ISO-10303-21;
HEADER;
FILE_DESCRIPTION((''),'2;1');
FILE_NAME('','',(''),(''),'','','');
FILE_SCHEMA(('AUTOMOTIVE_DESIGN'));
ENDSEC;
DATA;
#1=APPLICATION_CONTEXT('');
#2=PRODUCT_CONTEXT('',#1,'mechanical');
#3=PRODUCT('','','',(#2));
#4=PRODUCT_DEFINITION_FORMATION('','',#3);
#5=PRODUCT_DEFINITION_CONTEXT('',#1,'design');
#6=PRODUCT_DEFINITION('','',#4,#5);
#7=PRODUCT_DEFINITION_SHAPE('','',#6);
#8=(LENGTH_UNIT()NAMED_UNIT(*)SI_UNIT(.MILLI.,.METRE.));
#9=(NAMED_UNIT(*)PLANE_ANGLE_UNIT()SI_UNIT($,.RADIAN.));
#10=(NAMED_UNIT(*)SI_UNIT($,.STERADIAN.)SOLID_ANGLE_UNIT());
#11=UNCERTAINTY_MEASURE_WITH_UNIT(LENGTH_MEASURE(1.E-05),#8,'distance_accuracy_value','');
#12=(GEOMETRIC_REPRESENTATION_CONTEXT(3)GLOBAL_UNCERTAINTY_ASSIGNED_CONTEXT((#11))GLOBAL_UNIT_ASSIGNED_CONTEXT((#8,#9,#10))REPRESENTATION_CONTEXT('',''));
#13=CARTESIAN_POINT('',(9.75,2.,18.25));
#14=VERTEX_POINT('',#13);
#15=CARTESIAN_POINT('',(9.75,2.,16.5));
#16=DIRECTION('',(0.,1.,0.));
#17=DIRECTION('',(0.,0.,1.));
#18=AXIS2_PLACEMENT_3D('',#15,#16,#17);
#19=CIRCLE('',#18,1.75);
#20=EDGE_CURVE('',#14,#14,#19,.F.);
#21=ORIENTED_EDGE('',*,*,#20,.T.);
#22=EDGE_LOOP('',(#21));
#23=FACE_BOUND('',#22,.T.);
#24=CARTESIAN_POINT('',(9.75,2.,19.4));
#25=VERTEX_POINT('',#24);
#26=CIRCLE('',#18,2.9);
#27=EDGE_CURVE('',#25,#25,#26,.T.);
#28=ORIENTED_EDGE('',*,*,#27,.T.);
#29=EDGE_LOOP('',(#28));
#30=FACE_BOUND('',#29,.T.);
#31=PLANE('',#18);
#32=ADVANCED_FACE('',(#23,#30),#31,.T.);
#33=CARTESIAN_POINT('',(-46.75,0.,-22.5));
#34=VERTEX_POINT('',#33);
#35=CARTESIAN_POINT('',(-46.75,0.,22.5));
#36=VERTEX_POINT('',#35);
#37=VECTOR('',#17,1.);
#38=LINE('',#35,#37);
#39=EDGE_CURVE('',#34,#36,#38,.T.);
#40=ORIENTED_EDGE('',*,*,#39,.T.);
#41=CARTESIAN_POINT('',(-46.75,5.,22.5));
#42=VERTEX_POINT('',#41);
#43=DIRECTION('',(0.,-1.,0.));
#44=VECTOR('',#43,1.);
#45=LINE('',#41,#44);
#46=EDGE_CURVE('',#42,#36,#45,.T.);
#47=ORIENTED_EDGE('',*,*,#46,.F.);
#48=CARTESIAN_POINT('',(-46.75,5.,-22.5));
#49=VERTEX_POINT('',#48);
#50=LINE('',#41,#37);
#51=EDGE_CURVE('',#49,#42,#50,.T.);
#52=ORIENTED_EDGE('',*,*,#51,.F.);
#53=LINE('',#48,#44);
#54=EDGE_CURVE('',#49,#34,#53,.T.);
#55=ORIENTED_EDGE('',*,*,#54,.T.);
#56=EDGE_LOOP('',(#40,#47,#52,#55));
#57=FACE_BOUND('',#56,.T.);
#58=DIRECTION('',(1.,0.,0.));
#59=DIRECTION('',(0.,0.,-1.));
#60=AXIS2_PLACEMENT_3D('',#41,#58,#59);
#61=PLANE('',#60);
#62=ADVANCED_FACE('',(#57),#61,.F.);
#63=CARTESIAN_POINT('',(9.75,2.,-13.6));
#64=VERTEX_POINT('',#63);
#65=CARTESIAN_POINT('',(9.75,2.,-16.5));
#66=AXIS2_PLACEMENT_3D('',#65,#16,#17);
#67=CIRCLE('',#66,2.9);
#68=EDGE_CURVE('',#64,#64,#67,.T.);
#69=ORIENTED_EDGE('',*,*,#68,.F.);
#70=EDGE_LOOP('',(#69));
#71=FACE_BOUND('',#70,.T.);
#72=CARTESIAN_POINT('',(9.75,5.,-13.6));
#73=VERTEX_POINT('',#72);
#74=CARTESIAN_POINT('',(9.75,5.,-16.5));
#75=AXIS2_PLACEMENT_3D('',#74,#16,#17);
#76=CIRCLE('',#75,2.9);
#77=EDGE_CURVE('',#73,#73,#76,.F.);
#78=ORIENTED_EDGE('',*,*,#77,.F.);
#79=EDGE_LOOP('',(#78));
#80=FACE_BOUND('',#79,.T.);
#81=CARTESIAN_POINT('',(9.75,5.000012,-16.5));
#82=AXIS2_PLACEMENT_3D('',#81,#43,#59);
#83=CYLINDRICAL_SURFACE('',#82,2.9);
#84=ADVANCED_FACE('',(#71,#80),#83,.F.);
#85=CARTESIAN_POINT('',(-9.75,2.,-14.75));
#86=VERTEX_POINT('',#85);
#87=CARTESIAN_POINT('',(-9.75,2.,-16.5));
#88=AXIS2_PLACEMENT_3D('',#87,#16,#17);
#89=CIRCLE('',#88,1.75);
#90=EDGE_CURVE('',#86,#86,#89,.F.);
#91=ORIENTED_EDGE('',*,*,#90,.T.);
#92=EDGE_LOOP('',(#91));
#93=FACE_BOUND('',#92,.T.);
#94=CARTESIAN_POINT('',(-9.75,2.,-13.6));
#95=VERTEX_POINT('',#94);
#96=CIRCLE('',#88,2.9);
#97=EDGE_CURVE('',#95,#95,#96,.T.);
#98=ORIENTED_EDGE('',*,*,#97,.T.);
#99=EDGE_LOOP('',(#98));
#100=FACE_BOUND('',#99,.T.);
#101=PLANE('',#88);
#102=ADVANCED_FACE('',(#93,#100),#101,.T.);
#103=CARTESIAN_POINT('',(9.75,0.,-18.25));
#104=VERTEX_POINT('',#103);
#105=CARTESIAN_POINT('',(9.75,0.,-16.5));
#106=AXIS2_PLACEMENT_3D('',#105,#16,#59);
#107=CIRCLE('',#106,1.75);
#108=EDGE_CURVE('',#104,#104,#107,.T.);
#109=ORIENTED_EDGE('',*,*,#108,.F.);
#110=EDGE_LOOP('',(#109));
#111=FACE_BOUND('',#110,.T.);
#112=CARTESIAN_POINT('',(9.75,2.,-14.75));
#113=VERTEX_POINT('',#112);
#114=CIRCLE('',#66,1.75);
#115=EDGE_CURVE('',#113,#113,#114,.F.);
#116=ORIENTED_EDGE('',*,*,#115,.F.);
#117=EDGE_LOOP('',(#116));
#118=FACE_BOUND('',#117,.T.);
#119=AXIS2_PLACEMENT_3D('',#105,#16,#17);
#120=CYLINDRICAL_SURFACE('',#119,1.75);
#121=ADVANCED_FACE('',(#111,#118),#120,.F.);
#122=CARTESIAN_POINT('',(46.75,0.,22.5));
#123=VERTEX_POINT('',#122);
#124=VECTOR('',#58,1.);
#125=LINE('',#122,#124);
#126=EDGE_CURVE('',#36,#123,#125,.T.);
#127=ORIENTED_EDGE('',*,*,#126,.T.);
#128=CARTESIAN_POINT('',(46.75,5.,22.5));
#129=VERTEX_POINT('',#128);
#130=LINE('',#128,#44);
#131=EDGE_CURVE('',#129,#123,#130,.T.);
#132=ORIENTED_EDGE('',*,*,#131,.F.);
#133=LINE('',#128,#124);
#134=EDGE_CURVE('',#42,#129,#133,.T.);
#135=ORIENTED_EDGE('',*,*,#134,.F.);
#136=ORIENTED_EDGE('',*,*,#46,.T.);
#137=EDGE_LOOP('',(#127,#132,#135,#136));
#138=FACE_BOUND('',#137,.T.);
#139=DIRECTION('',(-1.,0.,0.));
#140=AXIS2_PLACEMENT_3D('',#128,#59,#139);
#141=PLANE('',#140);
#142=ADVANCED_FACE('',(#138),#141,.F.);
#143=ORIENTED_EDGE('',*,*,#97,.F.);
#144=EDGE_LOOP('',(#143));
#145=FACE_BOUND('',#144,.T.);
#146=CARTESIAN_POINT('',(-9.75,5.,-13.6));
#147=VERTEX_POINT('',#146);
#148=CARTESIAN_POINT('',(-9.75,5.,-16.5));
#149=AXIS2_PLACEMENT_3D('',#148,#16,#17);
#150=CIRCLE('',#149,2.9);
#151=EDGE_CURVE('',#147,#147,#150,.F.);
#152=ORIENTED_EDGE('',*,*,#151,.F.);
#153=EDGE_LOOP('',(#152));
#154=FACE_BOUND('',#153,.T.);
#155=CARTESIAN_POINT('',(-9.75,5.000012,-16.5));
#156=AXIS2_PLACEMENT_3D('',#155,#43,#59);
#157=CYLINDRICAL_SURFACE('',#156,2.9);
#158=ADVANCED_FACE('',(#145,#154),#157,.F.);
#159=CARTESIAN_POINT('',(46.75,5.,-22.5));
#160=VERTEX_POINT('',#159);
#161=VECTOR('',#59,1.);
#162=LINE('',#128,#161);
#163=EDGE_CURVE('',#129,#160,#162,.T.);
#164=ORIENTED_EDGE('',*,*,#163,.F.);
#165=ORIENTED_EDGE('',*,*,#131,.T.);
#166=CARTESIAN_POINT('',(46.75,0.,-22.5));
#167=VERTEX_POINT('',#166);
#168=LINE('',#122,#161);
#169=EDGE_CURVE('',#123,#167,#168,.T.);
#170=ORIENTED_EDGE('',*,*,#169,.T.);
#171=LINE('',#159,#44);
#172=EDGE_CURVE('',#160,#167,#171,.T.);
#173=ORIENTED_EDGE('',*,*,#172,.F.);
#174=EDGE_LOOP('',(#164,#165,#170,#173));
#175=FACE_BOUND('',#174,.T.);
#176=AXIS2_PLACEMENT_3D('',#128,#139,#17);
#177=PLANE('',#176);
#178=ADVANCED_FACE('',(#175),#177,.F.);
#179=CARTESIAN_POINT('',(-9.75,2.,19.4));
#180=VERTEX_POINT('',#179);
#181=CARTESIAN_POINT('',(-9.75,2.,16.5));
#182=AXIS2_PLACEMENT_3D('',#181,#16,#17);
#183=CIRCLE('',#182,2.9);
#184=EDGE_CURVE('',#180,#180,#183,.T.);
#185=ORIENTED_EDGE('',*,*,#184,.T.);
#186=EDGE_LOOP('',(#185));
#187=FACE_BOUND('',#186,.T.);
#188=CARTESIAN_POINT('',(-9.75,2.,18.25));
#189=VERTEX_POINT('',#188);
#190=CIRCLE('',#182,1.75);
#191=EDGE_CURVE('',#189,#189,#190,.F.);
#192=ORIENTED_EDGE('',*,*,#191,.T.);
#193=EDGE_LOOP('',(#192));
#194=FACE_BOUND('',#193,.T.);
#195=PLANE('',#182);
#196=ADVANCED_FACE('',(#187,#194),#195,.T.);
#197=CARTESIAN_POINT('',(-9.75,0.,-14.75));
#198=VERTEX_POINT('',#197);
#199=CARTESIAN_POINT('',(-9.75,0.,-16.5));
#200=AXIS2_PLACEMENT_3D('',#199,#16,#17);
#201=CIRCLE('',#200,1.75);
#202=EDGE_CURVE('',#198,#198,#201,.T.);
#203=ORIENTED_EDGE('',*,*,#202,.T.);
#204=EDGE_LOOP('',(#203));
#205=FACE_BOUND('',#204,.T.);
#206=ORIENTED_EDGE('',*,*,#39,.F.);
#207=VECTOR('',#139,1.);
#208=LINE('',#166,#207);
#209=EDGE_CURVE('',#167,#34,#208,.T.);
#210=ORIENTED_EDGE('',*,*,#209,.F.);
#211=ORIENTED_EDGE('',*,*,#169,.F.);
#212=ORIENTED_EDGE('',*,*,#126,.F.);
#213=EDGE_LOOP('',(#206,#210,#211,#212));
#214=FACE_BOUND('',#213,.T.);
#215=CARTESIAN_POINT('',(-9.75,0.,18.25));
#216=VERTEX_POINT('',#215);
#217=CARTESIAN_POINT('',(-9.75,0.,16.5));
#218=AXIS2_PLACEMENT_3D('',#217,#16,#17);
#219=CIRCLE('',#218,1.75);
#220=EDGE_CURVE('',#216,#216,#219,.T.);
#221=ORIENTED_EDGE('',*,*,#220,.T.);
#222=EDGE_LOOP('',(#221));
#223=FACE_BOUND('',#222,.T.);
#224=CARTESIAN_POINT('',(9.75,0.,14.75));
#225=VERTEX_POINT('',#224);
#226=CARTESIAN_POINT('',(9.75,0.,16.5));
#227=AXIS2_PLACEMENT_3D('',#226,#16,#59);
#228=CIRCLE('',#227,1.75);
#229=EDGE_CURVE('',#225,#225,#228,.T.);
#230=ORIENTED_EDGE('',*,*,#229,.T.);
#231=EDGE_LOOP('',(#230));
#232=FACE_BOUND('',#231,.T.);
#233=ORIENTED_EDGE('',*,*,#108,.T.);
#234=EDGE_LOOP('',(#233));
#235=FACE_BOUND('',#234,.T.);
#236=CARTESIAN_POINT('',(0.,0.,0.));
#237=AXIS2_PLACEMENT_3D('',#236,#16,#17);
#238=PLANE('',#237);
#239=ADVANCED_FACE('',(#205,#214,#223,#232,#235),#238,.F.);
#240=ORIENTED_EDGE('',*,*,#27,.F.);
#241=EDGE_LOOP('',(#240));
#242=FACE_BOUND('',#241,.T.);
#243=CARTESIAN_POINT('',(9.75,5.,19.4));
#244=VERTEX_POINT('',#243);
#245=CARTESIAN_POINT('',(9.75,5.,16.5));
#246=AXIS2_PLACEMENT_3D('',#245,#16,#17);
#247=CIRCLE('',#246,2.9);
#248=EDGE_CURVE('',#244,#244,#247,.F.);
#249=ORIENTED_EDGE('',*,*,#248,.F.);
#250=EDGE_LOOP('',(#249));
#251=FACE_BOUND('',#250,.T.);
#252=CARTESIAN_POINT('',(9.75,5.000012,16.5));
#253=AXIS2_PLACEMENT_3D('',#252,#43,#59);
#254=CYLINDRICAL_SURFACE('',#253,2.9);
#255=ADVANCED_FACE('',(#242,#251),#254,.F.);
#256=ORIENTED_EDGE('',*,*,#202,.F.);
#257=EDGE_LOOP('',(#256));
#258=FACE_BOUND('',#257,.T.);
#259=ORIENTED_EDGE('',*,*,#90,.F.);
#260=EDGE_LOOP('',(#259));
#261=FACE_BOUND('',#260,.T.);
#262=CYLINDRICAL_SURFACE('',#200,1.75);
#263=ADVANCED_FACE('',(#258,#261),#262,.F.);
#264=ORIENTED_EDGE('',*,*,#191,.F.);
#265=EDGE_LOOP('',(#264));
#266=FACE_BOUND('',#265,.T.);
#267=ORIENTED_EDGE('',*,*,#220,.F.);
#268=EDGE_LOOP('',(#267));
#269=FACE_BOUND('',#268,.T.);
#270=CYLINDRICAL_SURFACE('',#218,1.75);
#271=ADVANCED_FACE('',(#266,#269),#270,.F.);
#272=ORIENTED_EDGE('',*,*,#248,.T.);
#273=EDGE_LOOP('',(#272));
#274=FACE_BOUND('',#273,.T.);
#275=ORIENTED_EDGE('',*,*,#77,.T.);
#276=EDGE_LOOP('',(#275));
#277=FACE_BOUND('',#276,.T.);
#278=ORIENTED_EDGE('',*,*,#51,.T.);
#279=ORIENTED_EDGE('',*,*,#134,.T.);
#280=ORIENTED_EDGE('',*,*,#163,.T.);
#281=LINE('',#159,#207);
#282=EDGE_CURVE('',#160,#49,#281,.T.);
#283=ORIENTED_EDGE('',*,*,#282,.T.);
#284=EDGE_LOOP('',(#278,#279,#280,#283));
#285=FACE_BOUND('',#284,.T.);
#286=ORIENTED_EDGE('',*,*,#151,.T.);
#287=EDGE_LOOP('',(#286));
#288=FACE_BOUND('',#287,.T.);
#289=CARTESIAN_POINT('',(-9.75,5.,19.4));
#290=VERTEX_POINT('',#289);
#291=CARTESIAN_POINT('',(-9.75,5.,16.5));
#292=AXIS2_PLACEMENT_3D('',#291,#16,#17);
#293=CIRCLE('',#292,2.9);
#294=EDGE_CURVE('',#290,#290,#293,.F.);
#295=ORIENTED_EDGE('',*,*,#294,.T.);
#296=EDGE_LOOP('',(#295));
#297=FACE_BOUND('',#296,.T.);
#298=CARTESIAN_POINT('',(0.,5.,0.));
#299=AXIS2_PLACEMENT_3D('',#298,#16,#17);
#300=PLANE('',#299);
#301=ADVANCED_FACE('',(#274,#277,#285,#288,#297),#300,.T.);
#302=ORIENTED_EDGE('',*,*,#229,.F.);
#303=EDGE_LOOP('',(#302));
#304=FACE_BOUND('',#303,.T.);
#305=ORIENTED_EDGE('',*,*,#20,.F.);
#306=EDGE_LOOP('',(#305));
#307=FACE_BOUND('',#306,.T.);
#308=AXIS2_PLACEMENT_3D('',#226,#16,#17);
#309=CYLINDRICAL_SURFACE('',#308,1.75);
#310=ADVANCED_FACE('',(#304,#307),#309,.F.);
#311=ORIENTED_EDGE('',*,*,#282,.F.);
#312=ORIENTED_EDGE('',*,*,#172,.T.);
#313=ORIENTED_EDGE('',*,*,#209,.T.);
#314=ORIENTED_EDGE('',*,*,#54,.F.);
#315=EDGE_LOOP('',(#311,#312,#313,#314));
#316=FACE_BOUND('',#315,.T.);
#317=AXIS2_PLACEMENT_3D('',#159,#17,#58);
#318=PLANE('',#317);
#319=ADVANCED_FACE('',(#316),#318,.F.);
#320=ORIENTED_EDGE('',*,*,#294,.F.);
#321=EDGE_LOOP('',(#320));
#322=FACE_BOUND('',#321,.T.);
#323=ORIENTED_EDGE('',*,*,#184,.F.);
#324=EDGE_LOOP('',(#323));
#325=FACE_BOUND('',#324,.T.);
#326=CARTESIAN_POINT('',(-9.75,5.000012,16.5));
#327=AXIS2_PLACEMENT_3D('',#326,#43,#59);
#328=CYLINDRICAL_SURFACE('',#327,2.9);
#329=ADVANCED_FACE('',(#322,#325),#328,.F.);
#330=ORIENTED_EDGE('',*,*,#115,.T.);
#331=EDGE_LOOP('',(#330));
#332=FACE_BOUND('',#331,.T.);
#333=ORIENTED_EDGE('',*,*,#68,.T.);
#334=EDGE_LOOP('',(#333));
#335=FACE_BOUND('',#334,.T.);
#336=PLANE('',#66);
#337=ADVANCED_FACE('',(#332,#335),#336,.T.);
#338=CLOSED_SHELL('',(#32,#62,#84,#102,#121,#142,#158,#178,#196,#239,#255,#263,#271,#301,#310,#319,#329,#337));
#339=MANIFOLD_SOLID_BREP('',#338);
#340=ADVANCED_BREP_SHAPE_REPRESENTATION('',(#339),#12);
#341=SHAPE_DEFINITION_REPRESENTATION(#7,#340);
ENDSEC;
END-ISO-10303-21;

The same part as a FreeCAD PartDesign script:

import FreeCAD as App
import Part
import Sketcher
from FreeCAD import Vector


def add_polygon(sketch, points):
    """Adds a closed chain of lines whose ends are joined by coincident constraints."""
    first, n = sketch.GeometryCount, len(points)
    for a, b in zip(points, points[1:] + points[:1]):
        sketch.addGeometry(Part.LineSegment(App.Vector(*a, 0), App.Vector(*b, 0)), False)
    for i in range(n):
        sketch.addConstraint(Sketcher.Constraint("Coincident", first + i, 2, first + (i + 1) % n, 1))

doc = App.newDocument("Part")
body = doc.addObject("PartDesign::Body", "Body")

# Sketch on XZ plane
sketch1 = body.newObject("Sketcher::SketchObject", "Sketch")
sketch1.AttachmentSupport = (doc.getObject("XZ_Plane"), [""])
sketch1.MapMode = "FlatFace"
add_polygon(sketch1, [(-46.75, -22.5), (-46.75, 22.5), (46.75, 22.5), (46.75, -22.5)])  # lines 0-3
sketch1.addConstraint([
    Sketcher.Constraint("Vertical", 0),
    Sketcher.Constraint("Horizontal", 1),
    Sketcher.Constraint("Vertical", 2),
    Sketcher.Constraint("Horizontal", 3),
    Sketcher.Constraint("Symmetric", 0, 2, 2, 2, -1, 1),
    Sketcher.Constraint("DistanceY", 0, 1, 0, 2, 45.0),
    Sketcher.Constraint("DistanceX", 1, 1, 1, 2, 93.5),
])
pad1 = body.newObject("PartDesign::Pad", "Pad")
pad1.Profile = sketch1
pad1.Length = 5
pad1.Reversed = True

# Sketch on XZ plane
sketch2 = body.newObject("Sketcher::SketchObject", "Sketch001")
sketch2.AttachmentSupport = (doc.getObject("XZ_Plane"), [""])
sketch2.MapMode = "FlatFace"
sketch2.AttachmentOffset = App.Placement(Vector(0, 0, -5), App.Rotation())
sketch2.addGeometry([
    Part.Circle(Vector(-9.75, 16.5, 0), Vector(0, 0, 1), 1.75),
    Part.Circle(Vector(-9.75, -16.5, 0), Vector(0, 0, 1), 1.75),
    Part.Circle(Vector(9.75, 16.5, 0), Vector(0, 0, 1), 1.75),
    Part.Circle(Vector(9.75, -16.5, 0), Vector(0, 0, 1), 1.75),
], False)
sketch2.addConstraint([
    Sketcher.Constraint("Equal", 0, 1),
    Sketcher.Constraint("Equal", 1, 2),
    Sketcher.Constraint("Equal", 2, 3),
    Sketcher.Constraint("Symmetric", 1, 3, 2, 3, -1, 1),
    Sketcher.Constraint("Symmetric", 0, 3, 3, 3, -1, 1),
    Sketcher.Constraint("Symmetric", 0, 3, 2, 3, -2),
    Sketcher.Constraint("Diameter", 0, 3.5),
    Sketcher.Constraint("DistanceY", 1, 3, 0, 3, 33.0),
    Sketcher.Constraint("DistanceX", 0, 3, 2, 3, 19.5),
])
pocket1 = body.newObject("PartDesign::Pocket", "Pocket")
pocket1.Profile = sketch2
pocket1.Type = "ThroughAll"
pocket1.Midplane = True

# Sketch on XZ plane
sketch3 = body.newObject("Sketcher::SketchObject", "Sketch002")
sketch3.AttachmentSupport = (doc.getObject("XZ_Plane"), [""])
sketch3.MapMode = "FlatFace"
sketch3.AttachmentOffset = App.Placement(Vector(0, 0, -5), App.Rotation())
sketch3.addGeometry([
    Part.Circle(Vector(-9.75, -16.5, 0), Vector(0, 0, 1), 2.9),
    Part.Circle(Vector(9.75, -16.5, 0), Vector(0, 0, 1), 2.9),
    Part.Circle(Vector(9.75, 16.5, 0), Vector(0, 0, 1), 2.9),
    Part.Circle(Vector(-9.75, 16.5, 0), Vector(0, 0, 1), 2.9),
], False)
sketch3.addConstraint([
    Sketcher.Constraint("Equal", 0, 1),
    Sketcher.Constraint("Equal", 1, 2),
    Sketcher.Constraint("Equal", 2, 3),
    Sketcher.Constraint("Symmetric", 0, 3, 2, 3, -1, 1),
    Sketcher.Constraint("Symmetric", 1, 3, 3, 3, -1, 1),
    Sketcher.Constraint("Symmetric", 0, 3, 1, 3, -2),
    Sketcher.Constraint("Diameter", 0, 5.8),
    Sketcher.Constraint("DistanceY", 1, 3, 2, 3, 33.0),
    Sketcher.Constraint("DistanceX", 0, 3, 1, 3, 19.5),
])
pocket2 = body.newObject("PartDesign::Pocket", "Pocket001")
pocket2.Profile = sketch3
pocket2.Type = "TwoLengths"
pocket2.Length = 1
pocket2.Length2 = 3

doc.recompute()
